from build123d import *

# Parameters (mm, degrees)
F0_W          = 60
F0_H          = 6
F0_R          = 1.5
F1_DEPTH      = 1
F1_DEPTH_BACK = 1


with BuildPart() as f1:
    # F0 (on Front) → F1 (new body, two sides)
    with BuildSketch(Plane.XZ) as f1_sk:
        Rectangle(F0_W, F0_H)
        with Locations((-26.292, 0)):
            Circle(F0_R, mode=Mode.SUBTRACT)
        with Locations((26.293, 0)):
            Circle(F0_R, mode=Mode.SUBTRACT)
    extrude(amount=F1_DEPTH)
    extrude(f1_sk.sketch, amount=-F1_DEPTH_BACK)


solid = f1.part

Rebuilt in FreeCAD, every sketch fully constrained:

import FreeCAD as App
import Part
import Sketcher

V = App.Vector
Q = App.Units.Quantity

doc = App.newDocument("Part")
params = doc.addObject("Spreadsheet::Sheet", "Params")
for row, (alias, value) in enumerate([
    ("sketch1_diameter", "3 mm"),
    ("sketch1_width", "60 mm"),
    ("sketch1_height", "6 mm"),
    ("pad1_length", "1 mm"),
    ("pad1_length2", "1 mm"),
], start=1):
    params.set(f"A{row}", alias)
    params.set(f"B{row}", "=" + value)
    params.setAlias(f"B{row}", alias)

body = doc.addObject("PartDesign::Body", "Body")

# Sketch on XZ plane
sketch1 = body.newObject("Sketcher::SketchObject", "Sketch")
sketch1.AttachmentSupport = (doc.getObject("XZ_Plane"), [""])
sketch1.MapMode = "FlatFace"
sketch1.addGeometry(Part.LineSegment(V(-30, 3, 0), V(-30, -3, 0)), False)
sketch1.addGeometry(Part.LineSegment(V(-30, -3, 0), V(30, -3, 0)), False)
sketch1.addGeometry(Part.LineSegment(V(30, -3, 0), V(30, 3, 0)), False)
sketch1.addGeometry(Part.LineSegment(V(30, 3, 0), V(-30, 3, 0)), False)
sketch1.addGeometry(Part.Circle(V(-26.292, 0, 0), V(0, 0, 1), 1.5), False)
sketch1.addGeometry(Part.Circle(V(26.293, 0, 0), V(0, 0, 1), 1.5), False)
sketch1.addConstraint(Sketcher.Constraint("Coincident", 0, 2, 1, 1))
sketch1.addConstraint(Sketcher.Constraint("Coincident", 1, 2, 2, 1))
sketch1.addConstraint(Sketcher.Constraint("Coincident", 2, 2, 3, 1))
sketch1.addConstraint(Sketcher.Constraint("Coincident", 3, 2, 0, 1))
sketch1.addConstraint(Sketcher.Constraint("Vertical", 0))
sketch1.addConstraint(Sketcher.Constraint("Horizontal", 1))
sketch1.addConstraint(Sketcher.Constraint("Vertical", 2))
sketch1.addConstraint(Sketcher.Constraint("Horizontal", 3))
sketch1.addConstraint(Sketcher.Constraint("Equal", 4, 5))
sketch1.addConstraint(Sketcher.Constraint("Symmetric", 0, 2, 2, 2, -1, 1))
sketch1.addConstraint(Sketcher.Constraint("PointOnObject", 4, 3, -1))
sketch1.addConstraint(Sketcher.Constraint("PointOnObject", 5, 3, -1))
sketch1.addConstraint(Sketcher.Constraint("Diameter", 4, Q("3 mm")))
sketch1.addConstraint(Sketcher.Constraint("DistanceX", 1, 1, 1, 2, Q("60 mm")))
sketch1.addConstraint(Sketcher.Constraint("DistanceY", 0, 2, 0, 1, Q("6 mm")))
sketch1.addConstraint(Sketcher.Constraint("DistanceX", 4, 3, -1, 1, Q("26.292 mm")))
sketch1.addConstraint(Sketcher.Constraint("DistanceX", -1, 1, 5, 3, Q("26.293 mm")))
sketch1.setExpression("Constraints[12]", "Params.sketch1_diameter")
sketch1.setExpression("Constraints[13]", "Params.sketch1_width")
sketch1.setExpression("Constraints[14]", "Params.sketch1_height")
pad1 = body.newObject("PartDesign::Pad", "Pad")
pad1.Profile = sketch1
pad1.Type = "TwoLengths"
pad1.setExpression("Length", "Params.pad1_length")
pad1.setExpression("Length2", "Params.pad1_length2")

doc.recompute()
